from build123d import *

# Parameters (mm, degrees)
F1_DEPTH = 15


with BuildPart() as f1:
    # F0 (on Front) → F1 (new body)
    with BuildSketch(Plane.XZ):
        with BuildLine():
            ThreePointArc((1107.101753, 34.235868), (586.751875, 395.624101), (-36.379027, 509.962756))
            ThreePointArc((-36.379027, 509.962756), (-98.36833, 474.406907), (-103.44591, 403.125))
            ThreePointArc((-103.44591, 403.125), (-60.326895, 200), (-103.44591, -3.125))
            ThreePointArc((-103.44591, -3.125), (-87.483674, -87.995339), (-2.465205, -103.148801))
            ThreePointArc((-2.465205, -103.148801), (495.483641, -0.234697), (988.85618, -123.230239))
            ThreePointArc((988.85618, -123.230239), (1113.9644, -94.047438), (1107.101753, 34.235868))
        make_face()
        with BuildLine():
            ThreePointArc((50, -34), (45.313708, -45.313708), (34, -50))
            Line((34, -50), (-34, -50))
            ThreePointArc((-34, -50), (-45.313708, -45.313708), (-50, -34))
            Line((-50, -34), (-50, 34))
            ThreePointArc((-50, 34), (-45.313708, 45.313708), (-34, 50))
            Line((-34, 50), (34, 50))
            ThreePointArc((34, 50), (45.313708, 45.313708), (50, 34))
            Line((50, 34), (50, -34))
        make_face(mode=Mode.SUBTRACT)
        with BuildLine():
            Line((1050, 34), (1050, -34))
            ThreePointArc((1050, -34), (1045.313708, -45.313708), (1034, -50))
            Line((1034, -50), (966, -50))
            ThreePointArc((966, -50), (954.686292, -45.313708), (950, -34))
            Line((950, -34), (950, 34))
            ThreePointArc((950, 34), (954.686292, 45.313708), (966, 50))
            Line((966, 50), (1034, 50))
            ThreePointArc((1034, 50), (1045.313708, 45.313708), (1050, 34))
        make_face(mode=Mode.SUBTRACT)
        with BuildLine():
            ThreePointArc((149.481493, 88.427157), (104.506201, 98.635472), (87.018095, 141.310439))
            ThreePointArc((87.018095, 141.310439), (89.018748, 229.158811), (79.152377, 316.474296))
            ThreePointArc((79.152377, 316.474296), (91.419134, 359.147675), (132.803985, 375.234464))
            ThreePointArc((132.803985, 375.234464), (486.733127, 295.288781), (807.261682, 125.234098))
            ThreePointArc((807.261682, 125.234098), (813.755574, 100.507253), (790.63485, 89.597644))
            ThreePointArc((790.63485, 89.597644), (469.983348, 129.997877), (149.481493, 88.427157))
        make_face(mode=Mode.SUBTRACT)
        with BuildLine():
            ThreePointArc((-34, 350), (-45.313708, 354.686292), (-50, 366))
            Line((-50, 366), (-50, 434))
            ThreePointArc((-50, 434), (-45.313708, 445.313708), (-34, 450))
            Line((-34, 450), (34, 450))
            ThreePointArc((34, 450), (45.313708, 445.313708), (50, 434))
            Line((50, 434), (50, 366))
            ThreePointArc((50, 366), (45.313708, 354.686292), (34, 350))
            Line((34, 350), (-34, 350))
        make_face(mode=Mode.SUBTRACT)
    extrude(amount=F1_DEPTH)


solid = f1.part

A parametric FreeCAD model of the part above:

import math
import FreeCAD as App
import Part
import Sketcher

V = App.Vector

doc = App.newDocument("Part")
body = doc.addObject("PartDesign::Body", "Body")

# Sketch on XZ plane
sketch1 = body.newObject("Sketcher::SketchObject", "Sketch")
sketch1.AttachmentSupport = (doc.getObject("XZ_Plane"), [""])
sketch1.MapMode = "FlatFace"
sketch1.addGeometry([
    Part.ArcOfCircle(Part.Circle(V(11, -989, 0), V(0, 0, 1), 1500), math.radians(43), math.radians(92)),  # 0
    Part.ArcOfCircle(Part.Circle(V(-34, 434, 0), V(0, 0, 1), 76), math.radians(92), math.radians(204)),  # 1
    Part.ArcOfCircle(Part.Circle(V(-560, 200, 0), V(0, 0, 1), 500), math.radians(-24), math.radians(24)),  # 2
    Part.ArcOfCircle(Part.Circle(V(-34, -34, 0), V(0, 0, 1), 76), math.radians(156), math.radians(295)),  # 3
    Part.ArcOfCircle(Part.Circle(V(472, -1144, 0), V(0, 0, 1), 1144), math.radians(63), math.radians(115)),  # 4
    Part.ArcOfCircle(Part.Circle(V(1034, -34, 0), V(0, 0, 1), 100), math.radians(-117), math.radians(43)),  # 5
    Part.LineSegment(V(50, 34, 0), V(50, -34, 0)),  # 6
    Part.ArcOfCircle(Part.Circle(V(34, -34, 0), V(0, 0, 1), 16), math.radians(-90), math.radians(0)),  # 7
    Part.LineSegment(V(34, -50, 0), V(-34, -50, 0)),  # 8
    Part.ArcOfCircle(Part.Circle(V(-34, -34, 0), V(0, 0, 1), 16), math.radians(-180), math.radians(-90)),  # 9
    Part.LineSegment(V(-50, -34, 0), V(-50, 34, 0)),  # 10
    Part.ArcOfCircle(Part.Circle(V(-34, 34, 0), V(0, 0, 1), 16), math.radians(90), math.radians(180)),  # 11
    Part.LineSegment(V(-34, 50, 0), V(34, 50, 0)),  # 12
    Part.ArcOfCircle(Part.Circle(V(34, 34, 0), V(0, 0, 1), 16), math.radians(0), math.radians(90)),  # 13
    Part.ArcOfCircle(Part.Circle(V(1034, 34, 0), V(0, 0, 1), 16), math.radians(0), math.radians(90)),  # 14
    Part.LineSegment(V(1050, 34, 0), V(1050, -34, 0)),  # 15
    Part.ArcOfCircle(Part.Circle(V(1034, -34, 0), V(0, 0, 1), 16), math.radians(-90), math.radians(0)),  # 16
    Part.LineSegment(V(1034, -50, 0), V(966, -50, 0)),  # 17
    Part.ArcOfCircle(Part.Circle(V(966, -34, 0), V(0, 0, 1), 16), math.radians(-180), math.radians(-90)),  # 18
    Part.LineSegment(V(950, -34, 0), V(950, 34, 0)),  # 19
    Part.ArcOfCircle(Part.Circle(V(966, 34, 0), V(0, 0, 1), 16), math.radians(90), math.radians(180)),  # 20
    Part.LineSegment(V(966, 50, 0), V(1034, 50, 0)),  # 21
    Part.ArcOfCircle(Part.Circle(V(472, -1144, 0), V(0, 0, 1), 1274), math.radians(76), math.radians(105)),  # 22
    Part.ArcOfCircle(Part.Circle(V(137, 137, 0), V(0, 0, 1), 50), math.radians(175), math.radians(285)),  # 23
    Part.ArcOfCircle(Part.Circle(V(-560, 200, 0), V(0, 0, 1), 650), math.radians(-5.18), math.radians(10.32)),  # 24
    Part.ArcOfCircle(Part.Circle(V(128, 325, 0), V(0, 0, 1), 50), math.radians(85), math.radians(190)),  # 25
    Part.ArcOfCircle(Part.Circle(V(11, -989, 0), V(0, 0, 1), 1370), math.radians(54), math.radians(85)),  # 26
    Part.ArcOfCircle(Part.Circle(V(796, 109, 0), V(0, 0, 1), 20), math.radians(-104), math.radians(54)),  # 27
    Part.LineSegment(V(34, 350, 0), V(-34, 350, 0)),  # 28
    Part.ArcOfCircle(Part.Circle(V(-34, 366, 0), V(0, 0, 1), 16), math.radians(-180), math.radians(-90)),  # 29
    Part.LineSegment(V(-50, 366, 0), V(-50, 434, 0)),  # 30
    Part.ArcOfCircle(Part.Circle(V(-34, 434, 0), V(0, 0, 1), 16), math.radians(90), math.radians(180)),  # 31
    Part.LineSegment(V(-34, 450, 0), V(34, 450, 0)),  # 32
    Part.ArcOfCircle(Part.Circle(V(34, 434, 0), V(0, 0, 1), 16), math.radians(0), math.radians(90)),  # 33
    Part.LineSegment(V(50, 434, 0), V(50, 366, 0)),  # 34
    Part.ArcOfCircle(Part.Circle(V(34, 366, 0), V(0, 0, 1), 16), math.radians(-90), math.radians(0)),  # 35
], False)
sketch1.addConstraint([
    Sketcher.Constraint("Tangent", 0, 2, 1, 1),
    Sketcher.Constraint("Tangent", 1, 2, 2, 2),
    Sketcher.Constraint("Tangent", 2, 1, 3, 1),
    Sketcher.Constraint("Tangent", 3, 2, 4, 2),
    Sketcher.Constraint("Tangent", 4, 1, 5, 1),
    Sketcher.Constraint("Tangent", 5, 2, 0, 1),
    Sketcher.Constraint("Tangent", 6, 2, 7, 2),
    Sketcher.Constraint("Tangent", 7, 1, 8, 1),
    Sketcher.Constraint("Tangent", 8, 2, 9, 2),
    Sketcher.Constraint("Tangent", 9, 1, 10, 1),
    Sketcher.Constraint("Tangent", 10, 2, 11, 2),
    Sketcher.Constraint("Tangent", 11, 1, 12, 1),
    Sketcher.Constraint("Tangent", 12, 2, 13, 2),
    Sketcher.Constraint("Tangent", 13, 1, 6, 1),
    Sketcher.Constraint("Tangent", 14, 1, 15, 1),
    Sketcher.Constraint("Tangent", 15, 2, 16, 2),
    Sketcher.Constraint("Tangent", 16, 1, 17, 1),
    Sketcher.Constraint("Tangent", 17, 2, 18, 2),
    Sketcher.Constraint("Tangent", 18, 1, 19, 1),
    Sketcher.Constraint("Tangent", 19, 2, 20, 2),
    Sketcher.Constraint("Tangent", 20, 1, 21, 1),
    Sketcher.Constraint("Tangent", 21, 2, 14, 2),
    Sketcher.Constraint("Tangent", 22, 2, 23, 2),
    Sketcher.Constraint("Tangent", 23, 1, 24, 1),
    Sketcher.Constraint("Tangent", 24, 2, 25, 2),
    Sketcher.Constraint("Tangent", 25, 1, 26, 2),
    Sketcher.Constraint("Tangent", 26, 1, 27, 2),
    Sketcher.Constraint("Tangent", 27, 1, 22, 1),
    Sketcher.Constraint("Tangent", 28, 2, 29, 2),
    Sketcher.Constraint("Tangent", 29, 1, 30, 1),
    Sketcher.Constraint("Tangent", 30, 2, 31, 2),
    Sketcher.Constraint("Tangent", 31, 1, 32, 1),
    Sketcher.Constraint("Tangent", 32, 2, 33, 2),
    Sketcher.Constraint("Tangent", 33, 1, 34, 1),
    Sketcher.Constraint("Tangent", 34, 2, 35, 2),
    Sketcher.Constraint("Tangent", 35, 1, 28, 1),
    Sketcher.Constraint("Vertical", 6),
    Sketcher.Constraint("Horizontal", 8),
    Sketcher.Constraint("Vertical", 10),
    Sketcher.Constraint("Horizontal", 12),
    Sketcher.Constraint("Vertical", 15),
    Sketcher.Constraint("Horizontal", 17),
    Sketcher.Constraint("Vertical", 19),
    Sketcher.Constraint("Horizontal", 21),
    Sketcher.Constraint("Horizontal", 28),
    Sketcher.Constraint("Vertical", 30),
    Sketcher.Constraint("Horizontal", 32),
    Sketcher.Constraint("Vertical", 34),
    Sketcher.Constraint("Coincident", 9, 3, 3, 3),
    Sketcher.Constraint("Coincident", 16, 3, 5, 3),
    Sketcher.Constraint("Coincident", 22, 3, 4, 3),
    Sketcher.Constraint("Coincident", 26, 3, 0, 3),
    Sketcher.Constraint("Coincident", 31, 3, 1, 3),
    Sketcher.Constraint("Equal", 1, 3),
    Sketcher.Constraint("Equal", 7, 9),
    Sketcher.Constraint("Equal", 9, 11),
    Sketcher.Constraint("Equal", 11, 13),
    Sketcher.Constraint("Equal", 13, 14),
    Sketcher.Constraint("Equal", 14, 16),
    Sketcher.Constraint("Equal", 16, 18),
    Sketcher.Constraint("Equal", 18, 20),
    Sketcher.Constraint("Equal", 23, 25),
    Sketcher.Constraint("Equal", 20, 29),
    Sketcher.Constraint("Equal", 29, 31),
    Sketcher.Constraint("Equal", 31, 33),
    Sketcher.Constraint("Equal", 33, 35),
    Sketcher.Constraint("Symmetric", 7, 3, 11, 3, -1, 1),
    Sketcher.Constraint("Horizontal", 3, 3, 5, 3),
    Sketcher.Constraint("Horizontal", 13, 3, 14, 3),
    Sketcher.Constraint("Horizontal", 2, 3, 24, 3),
    Sketcher.Constraint("Vertical", 1, 3, 3, 3),
    Sketcher.Constraint("Vertical", 13, 3, 33, 3),
    Sketcher.Constraint("Equal", 12, 17),
    Sketcher.Constraint("Equal", 32, 6),
    Sketcher.Constraint("Equal", 19, 30),
    Sketcher.Constraint("Radius", 0, 1500.000001),
    Sketcher.Constraint("Radius", 1, 76.0),
    Sketcher.Constraint("Radius", 2, 500.000001),
    Sketcher.Constraint("Radius", 5, 100.0),
    Sketcher.Constraint("Radius", 7, 16.000002),
    Sketcher.Constraint("Radius", 23, 49.999999),
    Sketcher.Constraint("Radius", 27, 20.0),
    Sketcher.Constraint("DistanceX", 8, 2, 8, 1, 68.0),
    Sketcher.Constraint("DistanceY", -1, 1, 1, 3, 434.0),
    Sketcher.Constraint("DistanceX", -1, 1, 5, 3, 1034.0),
    Sketcher.Constraint("Radius", 22, 1274.224421),
    Sketcher.Constraint("Radius", 24, 650.000039),
    Sketcher.Constraint("Radius", 4, 1144.224424),
    Sketcher.Constraint("Radius", 26, 1369.999994),
    Sketcher.Constraint("DistanceY", 23, 3, 25, 3, 188.638002),
])
pad1 = body.newObject("PartDesign::Pad", "Pad")
pad1.Profile = sketch1
pad1.Length = 15

doc.recompute()
